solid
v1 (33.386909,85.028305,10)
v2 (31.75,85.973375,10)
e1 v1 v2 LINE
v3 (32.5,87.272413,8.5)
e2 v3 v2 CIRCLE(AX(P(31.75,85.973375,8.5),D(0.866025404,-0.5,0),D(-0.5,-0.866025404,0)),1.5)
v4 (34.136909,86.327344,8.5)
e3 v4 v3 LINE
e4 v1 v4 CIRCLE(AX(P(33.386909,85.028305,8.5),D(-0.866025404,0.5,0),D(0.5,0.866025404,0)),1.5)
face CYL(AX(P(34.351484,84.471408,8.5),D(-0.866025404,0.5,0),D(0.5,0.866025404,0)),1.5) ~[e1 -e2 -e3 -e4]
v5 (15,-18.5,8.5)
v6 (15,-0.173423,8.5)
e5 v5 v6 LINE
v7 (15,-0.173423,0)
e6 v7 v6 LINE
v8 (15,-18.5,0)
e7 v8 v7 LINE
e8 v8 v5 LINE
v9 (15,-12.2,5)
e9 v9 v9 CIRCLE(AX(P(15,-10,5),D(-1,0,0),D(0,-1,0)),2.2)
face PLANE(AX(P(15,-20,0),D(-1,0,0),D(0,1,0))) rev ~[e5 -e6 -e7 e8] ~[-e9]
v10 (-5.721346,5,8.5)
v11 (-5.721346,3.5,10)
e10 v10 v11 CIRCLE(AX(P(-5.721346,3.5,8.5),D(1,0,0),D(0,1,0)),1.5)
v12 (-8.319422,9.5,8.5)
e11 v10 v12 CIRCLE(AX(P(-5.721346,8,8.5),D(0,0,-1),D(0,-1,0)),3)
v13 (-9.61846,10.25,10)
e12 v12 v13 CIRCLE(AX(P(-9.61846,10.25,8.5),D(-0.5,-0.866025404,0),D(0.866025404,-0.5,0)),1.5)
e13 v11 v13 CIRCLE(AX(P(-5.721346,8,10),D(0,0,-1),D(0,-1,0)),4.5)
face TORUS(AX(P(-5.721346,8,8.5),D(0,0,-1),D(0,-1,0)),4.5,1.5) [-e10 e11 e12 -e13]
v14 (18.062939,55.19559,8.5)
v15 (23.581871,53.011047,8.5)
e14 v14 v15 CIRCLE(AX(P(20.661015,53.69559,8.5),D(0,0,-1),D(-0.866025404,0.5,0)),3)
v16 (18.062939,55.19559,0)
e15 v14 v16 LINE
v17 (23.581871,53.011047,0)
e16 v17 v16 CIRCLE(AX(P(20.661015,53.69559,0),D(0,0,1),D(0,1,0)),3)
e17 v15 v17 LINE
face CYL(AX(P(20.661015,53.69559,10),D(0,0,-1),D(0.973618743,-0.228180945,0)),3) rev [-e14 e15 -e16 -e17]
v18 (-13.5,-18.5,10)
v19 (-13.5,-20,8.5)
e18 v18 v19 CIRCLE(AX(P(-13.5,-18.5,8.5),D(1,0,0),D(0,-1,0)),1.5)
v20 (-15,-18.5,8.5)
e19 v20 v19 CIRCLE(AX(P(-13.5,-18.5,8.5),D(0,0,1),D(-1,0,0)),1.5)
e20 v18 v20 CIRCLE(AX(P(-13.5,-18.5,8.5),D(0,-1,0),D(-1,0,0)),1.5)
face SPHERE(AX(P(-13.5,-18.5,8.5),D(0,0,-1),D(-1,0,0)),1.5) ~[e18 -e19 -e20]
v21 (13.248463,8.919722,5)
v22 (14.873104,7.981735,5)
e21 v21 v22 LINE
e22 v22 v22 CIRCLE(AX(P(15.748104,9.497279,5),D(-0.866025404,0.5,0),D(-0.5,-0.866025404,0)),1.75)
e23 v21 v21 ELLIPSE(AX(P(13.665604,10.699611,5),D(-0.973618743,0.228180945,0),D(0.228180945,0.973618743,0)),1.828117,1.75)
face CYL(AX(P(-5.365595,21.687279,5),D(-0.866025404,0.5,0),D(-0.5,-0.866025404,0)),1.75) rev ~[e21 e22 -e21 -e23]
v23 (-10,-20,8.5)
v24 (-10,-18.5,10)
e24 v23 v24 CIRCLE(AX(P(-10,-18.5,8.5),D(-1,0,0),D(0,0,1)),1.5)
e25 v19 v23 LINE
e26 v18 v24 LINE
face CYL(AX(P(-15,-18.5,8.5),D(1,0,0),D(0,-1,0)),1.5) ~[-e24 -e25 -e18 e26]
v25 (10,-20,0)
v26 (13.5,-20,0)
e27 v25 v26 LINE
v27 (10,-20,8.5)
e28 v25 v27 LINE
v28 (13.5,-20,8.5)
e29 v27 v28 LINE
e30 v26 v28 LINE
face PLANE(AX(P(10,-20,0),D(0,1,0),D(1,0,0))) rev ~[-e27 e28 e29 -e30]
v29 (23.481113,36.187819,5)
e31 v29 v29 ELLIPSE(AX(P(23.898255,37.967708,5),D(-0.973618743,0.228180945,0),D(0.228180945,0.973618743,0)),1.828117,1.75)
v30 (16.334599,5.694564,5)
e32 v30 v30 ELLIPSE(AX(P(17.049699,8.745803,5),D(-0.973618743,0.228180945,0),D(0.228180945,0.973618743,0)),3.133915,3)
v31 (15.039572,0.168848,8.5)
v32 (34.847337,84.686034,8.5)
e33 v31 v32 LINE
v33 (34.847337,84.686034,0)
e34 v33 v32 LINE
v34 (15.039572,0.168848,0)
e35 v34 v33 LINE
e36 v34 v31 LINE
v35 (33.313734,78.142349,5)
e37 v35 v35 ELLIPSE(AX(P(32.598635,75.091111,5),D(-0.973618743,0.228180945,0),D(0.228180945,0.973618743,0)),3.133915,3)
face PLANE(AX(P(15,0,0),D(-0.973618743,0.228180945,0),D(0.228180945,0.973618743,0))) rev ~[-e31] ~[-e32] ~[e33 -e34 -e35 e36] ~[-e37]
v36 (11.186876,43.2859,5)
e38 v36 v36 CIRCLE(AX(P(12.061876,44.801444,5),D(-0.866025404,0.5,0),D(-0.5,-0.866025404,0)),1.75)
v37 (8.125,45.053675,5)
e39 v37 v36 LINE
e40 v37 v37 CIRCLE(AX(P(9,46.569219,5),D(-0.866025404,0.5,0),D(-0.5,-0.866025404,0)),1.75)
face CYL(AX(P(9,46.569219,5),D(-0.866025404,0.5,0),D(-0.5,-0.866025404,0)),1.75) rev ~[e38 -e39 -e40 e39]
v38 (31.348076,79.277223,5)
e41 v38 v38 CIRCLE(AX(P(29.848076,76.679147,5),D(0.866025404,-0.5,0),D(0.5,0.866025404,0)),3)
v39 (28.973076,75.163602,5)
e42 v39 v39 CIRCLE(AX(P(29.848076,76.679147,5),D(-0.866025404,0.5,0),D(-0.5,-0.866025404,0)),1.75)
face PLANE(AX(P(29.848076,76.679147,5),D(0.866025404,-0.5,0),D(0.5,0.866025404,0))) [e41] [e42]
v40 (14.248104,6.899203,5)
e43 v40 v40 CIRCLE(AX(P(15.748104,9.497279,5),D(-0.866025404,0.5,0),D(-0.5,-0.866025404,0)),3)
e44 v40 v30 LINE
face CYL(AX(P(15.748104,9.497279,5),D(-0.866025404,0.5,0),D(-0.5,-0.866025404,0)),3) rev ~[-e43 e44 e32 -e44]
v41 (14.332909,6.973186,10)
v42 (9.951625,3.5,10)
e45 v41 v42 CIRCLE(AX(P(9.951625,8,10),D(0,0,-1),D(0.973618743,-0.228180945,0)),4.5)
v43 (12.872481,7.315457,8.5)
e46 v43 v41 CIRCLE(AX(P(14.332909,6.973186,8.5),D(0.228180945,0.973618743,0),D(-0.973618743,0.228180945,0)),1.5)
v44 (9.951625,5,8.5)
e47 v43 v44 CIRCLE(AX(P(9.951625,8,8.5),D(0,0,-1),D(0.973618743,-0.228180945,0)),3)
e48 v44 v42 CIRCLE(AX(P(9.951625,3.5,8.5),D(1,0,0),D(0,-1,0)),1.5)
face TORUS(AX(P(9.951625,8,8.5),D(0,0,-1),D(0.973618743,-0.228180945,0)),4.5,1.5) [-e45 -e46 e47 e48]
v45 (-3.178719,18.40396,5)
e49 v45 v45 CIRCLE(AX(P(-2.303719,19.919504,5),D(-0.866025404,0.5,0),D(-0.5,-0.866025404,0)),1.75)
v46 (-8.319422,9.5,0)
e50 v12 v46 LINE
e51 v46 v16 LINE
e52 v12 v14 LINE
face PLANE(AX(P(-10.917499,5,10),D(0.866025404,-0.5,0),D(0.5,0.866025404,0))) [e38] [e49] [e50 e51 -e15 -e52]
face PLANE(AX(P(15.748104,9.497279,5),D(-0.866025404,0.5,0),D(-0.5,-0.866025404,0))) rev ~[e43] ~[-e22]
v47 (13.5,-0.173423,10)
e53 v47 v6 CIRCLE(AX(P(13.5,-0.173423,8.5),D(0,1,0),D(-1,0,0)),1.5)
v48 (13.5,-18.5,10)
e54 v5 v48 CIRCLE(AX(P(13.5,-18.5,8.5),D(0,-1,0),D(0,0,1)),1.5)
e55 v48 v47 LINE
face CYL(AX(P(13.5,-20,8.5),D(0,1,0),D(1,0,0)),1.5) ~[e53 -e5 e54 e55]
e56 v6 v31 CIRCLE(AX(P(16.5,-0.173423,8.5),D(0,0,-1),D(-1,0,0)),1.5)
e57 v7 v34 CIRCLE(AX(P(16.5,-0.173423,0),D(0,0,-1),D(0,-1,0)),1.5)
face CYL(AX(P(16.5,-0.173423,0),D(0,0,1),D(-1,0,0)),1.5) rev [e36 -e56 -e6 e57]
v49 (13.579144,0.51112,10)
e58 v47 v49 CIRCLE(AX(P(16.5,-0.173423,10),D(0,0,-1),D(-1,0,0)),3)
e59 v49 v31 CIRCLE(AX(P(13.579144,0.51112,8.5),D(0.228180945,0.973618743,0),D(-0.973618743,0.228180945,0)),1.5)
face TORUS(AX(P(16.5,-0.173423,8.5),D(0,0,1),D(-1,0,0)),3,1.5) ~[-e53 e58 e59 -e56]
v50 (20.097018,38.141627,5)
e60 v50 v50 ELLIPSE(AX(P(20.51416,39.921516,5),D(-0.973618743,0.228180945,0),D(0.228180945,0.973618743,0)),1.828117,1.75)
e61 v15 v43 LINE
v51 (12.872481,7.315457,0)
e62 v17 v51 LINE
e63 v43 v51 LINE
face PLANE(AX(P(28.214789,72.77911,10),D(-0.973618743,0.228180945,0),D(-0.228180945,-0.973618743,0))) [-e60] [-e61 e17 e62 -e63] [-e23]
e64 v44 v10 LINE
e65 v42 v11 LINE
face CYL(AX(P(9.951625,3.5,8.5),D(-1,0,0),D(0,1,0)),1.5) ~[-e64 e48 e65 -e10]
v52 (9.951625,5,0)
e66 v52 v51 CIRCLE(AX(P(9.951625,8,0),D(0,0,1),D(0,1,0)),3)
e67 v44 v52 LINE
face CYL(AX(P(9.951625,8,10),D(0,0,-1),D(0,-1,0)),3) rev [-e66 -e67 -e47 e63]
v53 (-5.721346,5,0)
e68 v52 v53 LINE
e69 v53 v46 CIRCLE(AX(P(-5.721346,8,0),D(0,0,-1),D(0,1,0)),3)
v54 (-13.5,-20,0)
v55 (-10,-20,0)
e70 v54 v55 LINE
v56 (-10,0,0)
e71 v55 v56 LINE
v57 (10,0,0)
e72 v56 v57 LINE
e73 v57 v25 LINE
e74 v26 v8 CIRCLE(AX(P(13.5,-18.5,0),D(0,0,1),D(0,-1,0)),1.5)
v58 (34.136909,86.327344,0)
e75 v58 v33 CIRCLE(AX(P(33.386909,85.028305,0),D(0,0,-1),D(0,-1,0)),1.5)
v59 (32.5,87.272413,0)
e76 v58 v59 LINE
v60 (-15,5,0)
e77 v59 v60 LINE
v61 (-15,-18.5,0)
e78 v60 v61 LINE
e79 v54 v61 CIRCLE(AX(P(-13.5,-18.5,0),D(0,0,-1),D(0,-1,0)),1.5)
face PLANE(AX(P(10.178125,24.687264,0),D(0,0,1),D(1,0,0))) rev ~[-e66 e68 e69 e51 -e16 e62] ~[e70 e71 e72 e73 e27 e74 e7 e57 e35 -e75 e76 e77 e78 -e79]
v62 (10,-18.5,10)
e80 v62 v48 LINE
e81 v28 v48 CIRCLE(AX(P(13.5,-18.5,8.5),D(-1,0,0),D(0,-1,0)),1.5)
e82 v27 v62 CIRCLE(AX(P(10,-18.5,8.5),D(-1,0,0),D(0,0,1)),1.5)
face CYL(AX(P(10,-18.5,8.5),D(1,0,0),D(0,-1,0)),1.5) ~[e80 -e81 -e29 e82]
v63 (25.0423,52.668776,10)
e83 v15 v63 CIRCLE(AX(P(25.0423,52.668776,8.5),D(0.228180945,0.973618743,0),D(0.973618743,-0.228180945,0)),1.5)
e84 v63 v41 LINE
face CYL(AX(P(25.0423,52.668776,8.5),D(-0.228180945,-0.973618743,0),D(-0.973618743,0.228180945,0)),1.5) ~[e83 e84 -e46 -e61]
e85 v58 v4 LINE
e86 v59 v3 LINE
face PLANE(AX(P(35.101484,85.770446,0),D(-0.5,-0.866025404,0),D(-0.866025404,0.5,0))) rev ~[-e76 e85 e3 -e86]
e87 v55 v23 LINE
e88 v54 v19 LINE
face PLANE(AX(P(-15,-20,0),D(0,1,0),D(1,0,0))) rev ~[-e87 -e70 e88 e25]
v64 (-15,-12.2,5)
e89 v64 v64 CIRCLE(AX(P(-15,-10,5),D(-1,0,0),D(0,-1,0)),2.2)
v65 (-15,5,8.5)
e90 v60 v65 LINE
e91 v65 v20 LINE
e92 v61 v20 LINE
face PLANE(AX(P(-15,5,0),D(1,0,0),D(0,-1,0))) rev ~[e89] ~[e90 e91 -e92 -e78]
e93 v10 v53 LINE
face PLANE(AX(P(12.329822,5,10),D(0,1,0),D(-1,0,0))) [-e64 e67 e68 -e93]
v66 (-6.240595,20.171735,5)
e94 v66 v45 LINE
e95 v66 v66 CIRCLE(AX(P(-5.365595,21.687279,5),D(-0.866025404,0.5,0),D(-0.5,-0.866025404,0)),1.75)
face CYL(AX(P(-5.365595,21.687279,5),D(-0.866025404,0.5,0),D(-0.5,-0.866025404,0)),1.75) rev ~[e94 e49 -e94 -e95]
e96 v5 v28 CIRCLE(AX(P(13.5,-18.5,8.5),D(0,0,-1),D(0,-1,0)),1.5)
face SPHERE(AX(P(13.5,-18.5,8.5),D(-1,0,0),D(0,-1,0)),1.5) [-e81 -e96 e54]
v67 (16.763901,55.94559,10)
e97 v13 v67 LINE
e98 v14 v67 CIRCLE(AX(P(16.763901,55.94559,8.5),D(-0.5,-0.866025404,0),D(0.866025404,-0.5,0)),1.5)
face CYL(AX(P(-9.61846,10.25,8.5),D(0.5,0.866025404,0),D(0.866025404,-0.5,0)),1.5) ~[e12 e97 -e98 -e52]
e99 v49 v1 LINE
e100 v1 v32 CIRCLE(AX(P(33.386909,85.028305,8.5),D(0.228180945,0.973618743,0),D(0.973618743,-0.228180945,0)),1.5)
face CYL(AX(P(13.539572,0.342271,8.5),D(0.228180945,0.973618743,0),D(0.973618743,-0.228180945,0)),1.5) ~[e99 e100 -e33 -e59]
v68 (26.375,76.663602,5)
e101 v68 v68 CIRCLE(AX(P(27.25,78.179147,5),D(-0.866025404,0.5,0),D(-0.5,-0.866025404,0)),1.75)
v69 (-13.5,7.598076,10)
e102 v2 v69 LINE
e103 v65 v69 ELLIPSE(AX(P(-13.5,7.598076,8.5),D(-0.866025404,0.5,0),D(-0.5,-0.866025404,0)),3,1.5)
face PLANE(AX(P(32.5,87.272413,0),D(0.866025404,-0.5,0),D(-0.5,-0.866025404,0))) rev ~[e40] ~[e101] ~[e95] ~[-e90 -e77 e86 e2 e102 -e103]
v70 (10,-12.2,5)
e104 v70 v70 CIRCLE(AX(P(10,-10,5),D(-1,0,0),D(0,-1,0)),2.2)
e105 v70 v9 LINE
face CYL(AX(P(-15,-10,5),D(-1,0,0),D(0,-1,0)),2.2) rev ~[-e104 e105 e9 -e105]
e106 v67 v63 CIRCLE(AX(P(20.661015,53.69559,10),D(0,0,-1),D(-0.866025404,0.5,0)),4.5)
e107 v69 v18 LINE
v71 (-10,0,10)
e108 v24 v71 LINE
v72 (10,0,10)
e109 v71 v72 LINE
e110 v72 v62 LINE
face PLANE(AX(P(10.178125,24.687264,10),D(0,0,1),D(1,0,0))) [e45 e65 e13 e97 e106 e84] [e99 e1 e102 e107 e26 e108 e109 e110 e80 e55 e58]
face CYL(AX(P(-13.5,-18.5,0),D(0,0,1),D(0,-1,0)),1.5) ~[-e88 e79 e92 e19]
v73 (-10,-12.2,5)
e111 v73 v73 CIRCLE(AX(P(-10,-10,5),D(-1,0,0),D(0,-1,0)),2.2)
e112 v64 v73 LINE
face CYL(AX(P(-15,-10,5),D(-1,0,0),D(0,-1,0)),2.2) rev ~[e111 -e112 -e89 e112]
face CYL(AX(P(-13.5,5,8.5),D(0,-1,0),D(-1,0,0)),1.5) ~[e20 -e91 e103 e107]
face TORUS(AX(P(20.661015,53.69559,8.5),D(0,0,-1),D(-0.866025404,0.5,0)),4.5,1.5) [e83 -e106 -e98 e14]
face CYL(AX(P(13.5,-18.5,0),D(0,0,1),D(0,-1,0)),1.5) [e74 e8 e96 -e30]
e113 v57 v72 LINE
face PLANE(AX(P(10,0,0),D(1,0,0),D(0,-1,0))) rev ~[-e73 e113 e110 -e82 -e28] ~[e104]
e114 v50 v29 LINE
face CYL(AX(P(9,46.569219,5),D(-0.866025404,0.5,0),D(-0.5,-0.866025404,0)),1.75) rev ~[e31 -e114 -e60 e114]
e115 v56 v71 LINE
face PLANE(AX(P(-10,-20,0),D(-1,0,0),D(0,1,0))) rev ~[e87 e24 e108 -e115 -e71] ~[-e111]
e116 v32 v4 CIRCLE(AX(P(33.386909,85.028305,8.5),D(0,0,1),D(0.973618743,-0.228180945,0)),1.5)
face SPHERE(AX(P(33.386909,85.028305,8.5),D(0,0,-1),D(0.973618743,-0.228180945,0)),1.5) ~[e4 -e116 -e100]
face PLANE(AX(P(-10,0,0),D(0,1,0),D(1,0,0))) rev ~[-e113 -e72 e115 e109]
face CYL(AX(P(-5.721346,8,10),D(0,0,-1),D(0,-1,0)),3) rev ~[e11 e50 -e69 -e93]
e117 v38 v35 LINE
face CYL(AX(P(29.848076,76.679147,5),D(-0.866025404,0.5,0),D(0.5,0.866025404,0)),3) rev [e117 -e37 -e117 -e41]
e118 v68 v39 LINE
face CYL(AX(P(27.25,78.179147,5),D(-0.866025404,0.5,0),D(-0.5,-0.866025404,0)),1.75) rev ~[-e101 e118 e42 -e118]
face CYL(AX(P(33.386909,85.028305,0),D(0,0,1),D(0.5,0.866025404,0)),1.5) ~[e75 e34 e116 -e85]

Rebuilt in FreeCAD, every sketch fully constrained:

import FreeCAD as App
import Part
import Sketcher
from FreeCAD import Vector
Q = App.Units.Quantity


def edges_at(feature, points):
    """Names of the edges that pass closest to the given points."""
    edges = feature.Shape.Edges
    near = lambda p: min(range(len(edges)), key=lambda i: edges[i].distToShape(Part.Vertex(*p))[0])
    return sorted({f"Edge{near(p) + 1}" for p in points})


def add_polygon(sketch, points):
    """Adds a closed chain of lines whose ends are joined by coincident constraints."""
    first, n = sketch.GeometryCount, len(points)
    for a, b in zip(points, points[1:] + points[:1]):
        sketch.addGeometry(Part.LineSegment(App.Vector(*a, 0), App.Vector(*b, 0)), False)
    for i in range(n):
        sketch.addConstraint(Sketcher.Constraint("Coincident", first + i, 2, first + (i + 1) % n, 1))

doc = App.newDocument("Part")
params = doc.addObject("Spreadsheet::Sheet", "Params")
for row, (alias, value) in enumerate([
    ("sketch1_width", "20 mm"),
    ("sketch1_width2", "5 mm"),
    ("sketch1_height", "25 mm"),
    ("sketch1_length", "95 mm"),
    ("pad1_length", "10 mm"),
    ("fillet_radius", "3 mm"),
    ("fillet2_radius", "1.5 mm"),
    ("sketch3_diameter", "4.4 mm"),
    ("sketch4_diameter", "3.5 mm"),
    ("sketch5_diameter", "6 mm"),
    ("sketch6_diameter", "6 mm"),
], start=1):
    params.set(f"A{row}", alias)
    params.set(f"B{row}", "=" + value)
    params.setAlias(f"B{row}", alias)

body = doc.addObject("PartDesign::Body", "Body")

sketch1 = doc.addObject("Sketcher::SketchObject", "Sketch")
body.addObject(sketch1)
sketch1.AttachmentSupport = (doc.XY_Plane, [""])
sketch1.MapMode = "FlatFace"
add_polygon(sketch1, [(-10, -20), (-10, 0), (10, 0), (10, -20), (15, -20), (15, 0), (35.1, 85.8), (32.5, 87.3), (-15, 5), (-15, -20)])
sketch1.addConstraint([
    Sketcher.Constraint("Vertical", 0),
    Sketcher.Constraint("Horizontal", 1),
    Sketcher.Constraint("Vertical", 2),
    Sketcher.Constraint("Horizontal", 3),
    Sketcher.Constraint("Vertical", 4),
    Sketcher.Constraint("Vertical", 8),
    Sketcher.Constraint("Horizontal", 9),
    Sketcher.Constraint("Symmetric", 0, 2, 1, 2, -1, 1),
    Sketcher.Constraint("Symmetric", 3, 2, 8, 2, -2),
    Sketcher.Constraint("PointOnObject", 4, 2, -1),
    Sketcher.Constraint("Perpendicular", 6, 7),
    Sketcher.Constraint("Equal", 1, 0),
    Sketcher.Constraint("DistanceX", 1, 1, 1, 2, Q("20 mm")),
    Sketcher.Constraint("DistanceX", 3, 1, 3, 2, Q("5 mm")),
    Sketcher.Constraint("DistanceY", 8, 2, 8, 1, Q("25 mm")),
    Sketcher.Constraint("Angle", 6, Q("150 deg")),
    Sketcher.Constraint("Distance", 7, Q("95 mm")),
    Sketcher.Constraint("Angle", 5, Q("76.81 deg")),
])
sketch1.setExpression("Constraints[22]", "Params.sketch1_width")
sketch1.setExpression("Constraints[23]", "Params.sketch1_width2")
sketch1.setExpression("Constraints[24]", "Params.sketch1_height")
sketch1.setExpression("Constraints[26]", "Params.sketch1_length")
pad1 = doc.addObject("PartDesign::Pad", "Pad")
body.addObject(pad1)
pad1.Profile = sketch1
pad1.setExpression("Length", "Params.pad1_length")

sketch2 = doc.addObject("Sketcher::SketchObject", "Sketch001")
body.addObject(sketch2)
sketch2.AttachmentSupport = (doc.XY_Plane, [""])
sketch2.MapMode = "FlatFace"
sketch2.AttachmentOffset = App.Placement(Vector(0, 0, 10), App.Rotation())
add_polygon(sketch2, [(28, 73), (-11, 5), (12, 5)])
sketch2.addConstraint([
    Sketcher.Constraint("Horizontal", 1),
    Sketcher.Constraint("Angle", 0, Q("-120 deg")),
    Sketcher.Constraint("DistanceY", -1, 1, 0, 2, Q("5 mm")),
    Sketcher.Constraint("Angle", 2, Q("76.81 deg")),
    Sketcher.Constraint("DistanceX", 1, 1, 1, 2, Q("23.247321 mm")),
    Sketcher.Constraint("DistanceX", 0, 2, -1, 1, Q("10.917499 mm")),
])
pocket1 = doc.addObject("PartDesign::Pocket", "Pocket")
body.addObject(pocket1)
pocket1.Profile = sketch2
pocket1.Type = "ThroughAll"
doc.recompute()

fillet = doc.addObject("PartDesign::Fillet", "Fillet")
body.addObject(fillet)
fillet.Base = (pocket1, edges_at(pocket1, [(28.215, 72.779, 5), (12.33, 5, 5), (-10.917, 5, 5)]))
fillet.setExpression("Radius", "Params.fillet_radius")
doc.recompute()

fillet2 = doc.addObject("PartDesign::Fillet", "Fillet001")
body.addObject(fillet2)
fillet2.Base = (fillet, edges_at(fillet, [
    (12.5, -20, 10),
    (-15, -20, 5),
    (35.101, 85.77, 5),
    (15, 0, 5),
    (15, -20, 5),
    (15, -10, 10),
    (25.051, 42.885, 10),
    (33.801, 86.521, 10),
    (-15, -7.5, 10),
    (-12.5, -20, 10),
    (4.872, 32.348, 10),
    (18.227, 30.163, 10),
    (2.115, 5, 10),
    (21.765, 56.485, 10),
    (11.815, 5.649, 10),
    (-8.319, 6.5, 10),
]))
fillet2.setExpression("Radius", "Params.fillet2_radius")

sketch3 = doc.addObject("Sketcher::SketchObject", "Sketch002")
body.addObject(sketch3)
sketch3.AttachmentSupport = (doc.YZ_Plane, [""])
sketch3.MapMode = "FlatFace"
sketch3.AttachmentOffset = App.Placement(Vector(0, 0, -15), App.Rotation())
sketch3.addGeometry(Part.Circle(Vector(-10, 5, 0), Vector(0, 0, 1), 2.2), False)
sketch3.addConstraint([
    Sketcher.Constraint("Diameter", 0, Q("4.4 mm")),
    Sketcher.Constraint("DistanceX", 0, 3, -1, 1, Q("10 mm")),
    Sketcher.Constraint("DistanceY", -1, 1, 0, 3, Q("5 mm")),
])
sketch3.setExpression("Constraints[0]", "Params.sketch3_diameter")
pocket2 = doc.addObject("PartDesign::Pocket", "Pocket001")
body.addObject(pocket2)
pocket2.Profile = sketch3
pocket2.Type = "ThroughAll"
pocket2.Reversed = True

sketch4 = doc.addObject("Sketcher::SketchObject", "Sketch003")
body.addObject(sketch4)
sketch4.Placement = App.Placement(Vector(-13.415064, 7.745191, 0), App.Rotation(Vector(0, 0, 1), Vector(0.5, 0.866025404, 0), Vector(-0.866025404, 0.5, 0), "ZXY"))
sketch4.addGeometry([
    Part.Circle(Vector(5, 81.3, 0), Vector(0, 0, 1), 1.8),
    Part.Circle(Vector(5, 44.8, 0), Vector(0, 0, 1), 1.8),
    Part.Circle(Vector(5, 16.1, 0), Vector(0, 0, 1), 1.8),
], False)
sketch4.addConstraint([
    Sketcher.Constraint("Equal", 0, 1),
    Sketcher.Constraint("Equal", 1, 2),
    Sketcher.Constraint("Vertical", 0, 3, 1, 3),
    Sketcher.Constraint("Vertical", 1, 3, 2, 3),
    Sketcher.Constraint("Diameter", 0, Q("3.5 mm")),
    Sketcher.Constraint("DistanceX", -1, 1, 0, 3, Q("5 mm")),
    Sketcher.Constraint("DistanceY", 1, 3, 0, 3, Q("36.5 mm")),
    Sketcher.Constraint("DistanceY", 2, 3, 1, 3, Q("28.73119 mm")),
    Sketcher.Constraint("DistanceY", -1, 1, 0, 3, Q("81.330127 mm")),
])
sketch4.setExpression("Constraints[4]", "Params.sketch4_diameter")
pocket3 = doc.addObject("PartDesign::Pocket", "Pocket002")
body.addObject(pocket3)
pocket3.Profile = sketch4
pocket3.Type = "ThroughAll"

sketch5 = doc.addObject("Sketcher::SketchObject", "Sketch004")
body.addObject(sketch5)
sketch5.Placement = App.Placement(Vector(-10.882451, 6.131805, 0), App.Rotation(Vector(0, 0, -1), Vector(0.5, 0.866025404, 0), Vector(0.866025404, -0.5, 0), "ZXY"))
sketch5.addGeometry(Part.Circle(Vector(-5, 81.5, 0), Vector(0, 0, 1), 3), False)
sketch5.addConstraint([
    Sketcher.Constraint("Diameter", 0, Q("6 mm")),
    Sketcher.Constraint("DistanceX", 0, 3, -1, 1, Q("5 mm")),
    Sketcher.Constraint("DistanceY", -1, 1, 0, 3, Q("81.461054 mm")),
])
sketch5.setExpression("Constraints[0]", "Params.sketch5_diameter")
pocket4 = doc.addObject("PartDesign::Pocket", "Pocket003")
body.addObject(pocket4)
pocket4.Profile = sketch5
pocket4.Type = "ThroughAll"
pocket4.Reversed = True

sketch6 = doc.addObject("Sketcher::SketchObject", "Sketch005")
body.addObject(sketch6)
sketch6.Placement = App.Placement(Vector(7.698636, -4.444809, 0), App.Rotation(Vector(0, 0, 1), Vector(0.5, 0.866025404, 0), Vector(-0.866025404, 0.5, 0), "ZXY"))
sketch6.addGeometry(Part.Circle(Vector(5, 16.1, 0), Vector(0, 0, 1), 3), False)
sketch6.addConstraint([
    Sketcher.Constraint("Diameter", 0, Q("6 mm")),
    Sketcher.Constraint("DistanceX", -1, 1, 0, 3, Q("5 mm")),
    Sketcher.Constraint("DistanceY", -1, 1, 0, 3, Q("16.098937 mm")),
])
sketch6.setExpression("Constraints[0]", "Params.sketch6_diameter")
pocket5 = doc.addObject("PartDesign::Pocket", "Pocket004")
body.addObject(pocket5)
pocket5.Profile = sketch6
pocket5.Type = "ThroughAll"

doc.recompute()
